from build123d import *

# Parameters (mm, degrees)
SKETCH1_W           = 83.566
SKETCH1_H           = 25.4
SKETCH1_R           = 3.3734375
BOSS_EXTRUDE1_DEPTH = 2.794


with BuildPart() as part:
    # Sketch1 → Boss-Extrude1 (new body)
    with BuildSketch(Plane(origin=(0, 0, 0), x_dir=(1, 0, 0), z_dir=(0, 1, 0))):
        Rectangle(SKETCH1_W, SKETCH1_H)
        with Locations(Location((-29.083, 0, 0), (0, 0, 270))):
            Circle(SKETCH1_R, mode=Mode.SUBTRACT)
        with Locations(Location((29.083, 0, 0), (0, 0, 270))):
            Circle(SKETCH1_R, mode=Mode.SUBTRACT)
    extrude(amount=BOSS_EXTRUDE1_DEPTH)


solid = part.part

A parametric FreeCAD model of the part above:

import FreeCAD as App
import Part
import Sketcher

V = App.Vector
Q = App.Units.Quantity

doc = App.newDocument("Part")
body = doc.addObject("PartDesign::Body", "Body")

sketch1 = doc.addObject("Sketcher::SketchObject", "Sketch")
body.addObject(sketch1)
sketch1.AttachmentSupport = (doc.XZ_Plane, [""])
sketch1.MapMode = "FlatFace"
sketch1.addGeometry([
    Part.LineSegment(V(-41.8, -12.7, 0), V(-41.8, 12.7, 0)),
    Part.LineSegment(V(-41.8, 12.7, 0), V(41.8, 12.7, 0)),
    Part.LineSegment(V(41.8, 12.7, 0), V(41.8, -12.7, 0)),
    Part.LineSegment(V(41.8, -12.7, 0), V(-41.8, -12.7, 0)),
    Part.Circle(V(-29.1, 0, 0), V(0, 0, 1), 3.4),
    Part.Circle(V(29.1, 0, 0), V(0, 0, 1), 3.4),
], False)
sketch1.addConstraint([
    Sketcher.Constraint("Coincident", 0, 2, 1, 1),
    Sketcher.Constraint("Coincident", 1, 2, 2, 1),
    Sketcher.Constraint("Coincident", 2, 2, 3, 1),
    Sketcher.Constraint("Coincident", 3, 2, 0, 1),
    Sketcher.Constraint("Vertical", 0),
    Sketcher.Constraint("Horizontal", 1),
    Sketcher.Constraint("Vertical", 2),
    Sketcher.Constraint("Horizontal", 3),
    Sketcher.Constraint("Equal", 4, 5),
    Sketcher.Constraint("Symmetric", 4, 3, 5, 3, -1, 1),
    Sketcher.Constraint("Symmetric", 0, 2, 2, 2, -1, 1),
    Sketcher.Constraint("PointOnObject", 4, 3, -1),
    Sketcher.Constraint("DistanceY", 0, 1, 0, 2, Q("1 in")),
    Sketcher.Constraint("Diameter", 4, Q("0.265625 in")),
    Sketcher.Constraint("DistanceX", 1, 1, 1, 2, Q("3.29 in")),
    Sketcher.Constraint("DistanceX", 0, 2, 4, 3, Q("0.5 in")),
])
pad1 = doc.addObject("PartDesign::Pad", "Pad")
body.addObject(pad1)
pad1.Profile = sketch1
pad1.Length = Q("0.11 in")
pad1.Reversed = True

doc.recompute()
